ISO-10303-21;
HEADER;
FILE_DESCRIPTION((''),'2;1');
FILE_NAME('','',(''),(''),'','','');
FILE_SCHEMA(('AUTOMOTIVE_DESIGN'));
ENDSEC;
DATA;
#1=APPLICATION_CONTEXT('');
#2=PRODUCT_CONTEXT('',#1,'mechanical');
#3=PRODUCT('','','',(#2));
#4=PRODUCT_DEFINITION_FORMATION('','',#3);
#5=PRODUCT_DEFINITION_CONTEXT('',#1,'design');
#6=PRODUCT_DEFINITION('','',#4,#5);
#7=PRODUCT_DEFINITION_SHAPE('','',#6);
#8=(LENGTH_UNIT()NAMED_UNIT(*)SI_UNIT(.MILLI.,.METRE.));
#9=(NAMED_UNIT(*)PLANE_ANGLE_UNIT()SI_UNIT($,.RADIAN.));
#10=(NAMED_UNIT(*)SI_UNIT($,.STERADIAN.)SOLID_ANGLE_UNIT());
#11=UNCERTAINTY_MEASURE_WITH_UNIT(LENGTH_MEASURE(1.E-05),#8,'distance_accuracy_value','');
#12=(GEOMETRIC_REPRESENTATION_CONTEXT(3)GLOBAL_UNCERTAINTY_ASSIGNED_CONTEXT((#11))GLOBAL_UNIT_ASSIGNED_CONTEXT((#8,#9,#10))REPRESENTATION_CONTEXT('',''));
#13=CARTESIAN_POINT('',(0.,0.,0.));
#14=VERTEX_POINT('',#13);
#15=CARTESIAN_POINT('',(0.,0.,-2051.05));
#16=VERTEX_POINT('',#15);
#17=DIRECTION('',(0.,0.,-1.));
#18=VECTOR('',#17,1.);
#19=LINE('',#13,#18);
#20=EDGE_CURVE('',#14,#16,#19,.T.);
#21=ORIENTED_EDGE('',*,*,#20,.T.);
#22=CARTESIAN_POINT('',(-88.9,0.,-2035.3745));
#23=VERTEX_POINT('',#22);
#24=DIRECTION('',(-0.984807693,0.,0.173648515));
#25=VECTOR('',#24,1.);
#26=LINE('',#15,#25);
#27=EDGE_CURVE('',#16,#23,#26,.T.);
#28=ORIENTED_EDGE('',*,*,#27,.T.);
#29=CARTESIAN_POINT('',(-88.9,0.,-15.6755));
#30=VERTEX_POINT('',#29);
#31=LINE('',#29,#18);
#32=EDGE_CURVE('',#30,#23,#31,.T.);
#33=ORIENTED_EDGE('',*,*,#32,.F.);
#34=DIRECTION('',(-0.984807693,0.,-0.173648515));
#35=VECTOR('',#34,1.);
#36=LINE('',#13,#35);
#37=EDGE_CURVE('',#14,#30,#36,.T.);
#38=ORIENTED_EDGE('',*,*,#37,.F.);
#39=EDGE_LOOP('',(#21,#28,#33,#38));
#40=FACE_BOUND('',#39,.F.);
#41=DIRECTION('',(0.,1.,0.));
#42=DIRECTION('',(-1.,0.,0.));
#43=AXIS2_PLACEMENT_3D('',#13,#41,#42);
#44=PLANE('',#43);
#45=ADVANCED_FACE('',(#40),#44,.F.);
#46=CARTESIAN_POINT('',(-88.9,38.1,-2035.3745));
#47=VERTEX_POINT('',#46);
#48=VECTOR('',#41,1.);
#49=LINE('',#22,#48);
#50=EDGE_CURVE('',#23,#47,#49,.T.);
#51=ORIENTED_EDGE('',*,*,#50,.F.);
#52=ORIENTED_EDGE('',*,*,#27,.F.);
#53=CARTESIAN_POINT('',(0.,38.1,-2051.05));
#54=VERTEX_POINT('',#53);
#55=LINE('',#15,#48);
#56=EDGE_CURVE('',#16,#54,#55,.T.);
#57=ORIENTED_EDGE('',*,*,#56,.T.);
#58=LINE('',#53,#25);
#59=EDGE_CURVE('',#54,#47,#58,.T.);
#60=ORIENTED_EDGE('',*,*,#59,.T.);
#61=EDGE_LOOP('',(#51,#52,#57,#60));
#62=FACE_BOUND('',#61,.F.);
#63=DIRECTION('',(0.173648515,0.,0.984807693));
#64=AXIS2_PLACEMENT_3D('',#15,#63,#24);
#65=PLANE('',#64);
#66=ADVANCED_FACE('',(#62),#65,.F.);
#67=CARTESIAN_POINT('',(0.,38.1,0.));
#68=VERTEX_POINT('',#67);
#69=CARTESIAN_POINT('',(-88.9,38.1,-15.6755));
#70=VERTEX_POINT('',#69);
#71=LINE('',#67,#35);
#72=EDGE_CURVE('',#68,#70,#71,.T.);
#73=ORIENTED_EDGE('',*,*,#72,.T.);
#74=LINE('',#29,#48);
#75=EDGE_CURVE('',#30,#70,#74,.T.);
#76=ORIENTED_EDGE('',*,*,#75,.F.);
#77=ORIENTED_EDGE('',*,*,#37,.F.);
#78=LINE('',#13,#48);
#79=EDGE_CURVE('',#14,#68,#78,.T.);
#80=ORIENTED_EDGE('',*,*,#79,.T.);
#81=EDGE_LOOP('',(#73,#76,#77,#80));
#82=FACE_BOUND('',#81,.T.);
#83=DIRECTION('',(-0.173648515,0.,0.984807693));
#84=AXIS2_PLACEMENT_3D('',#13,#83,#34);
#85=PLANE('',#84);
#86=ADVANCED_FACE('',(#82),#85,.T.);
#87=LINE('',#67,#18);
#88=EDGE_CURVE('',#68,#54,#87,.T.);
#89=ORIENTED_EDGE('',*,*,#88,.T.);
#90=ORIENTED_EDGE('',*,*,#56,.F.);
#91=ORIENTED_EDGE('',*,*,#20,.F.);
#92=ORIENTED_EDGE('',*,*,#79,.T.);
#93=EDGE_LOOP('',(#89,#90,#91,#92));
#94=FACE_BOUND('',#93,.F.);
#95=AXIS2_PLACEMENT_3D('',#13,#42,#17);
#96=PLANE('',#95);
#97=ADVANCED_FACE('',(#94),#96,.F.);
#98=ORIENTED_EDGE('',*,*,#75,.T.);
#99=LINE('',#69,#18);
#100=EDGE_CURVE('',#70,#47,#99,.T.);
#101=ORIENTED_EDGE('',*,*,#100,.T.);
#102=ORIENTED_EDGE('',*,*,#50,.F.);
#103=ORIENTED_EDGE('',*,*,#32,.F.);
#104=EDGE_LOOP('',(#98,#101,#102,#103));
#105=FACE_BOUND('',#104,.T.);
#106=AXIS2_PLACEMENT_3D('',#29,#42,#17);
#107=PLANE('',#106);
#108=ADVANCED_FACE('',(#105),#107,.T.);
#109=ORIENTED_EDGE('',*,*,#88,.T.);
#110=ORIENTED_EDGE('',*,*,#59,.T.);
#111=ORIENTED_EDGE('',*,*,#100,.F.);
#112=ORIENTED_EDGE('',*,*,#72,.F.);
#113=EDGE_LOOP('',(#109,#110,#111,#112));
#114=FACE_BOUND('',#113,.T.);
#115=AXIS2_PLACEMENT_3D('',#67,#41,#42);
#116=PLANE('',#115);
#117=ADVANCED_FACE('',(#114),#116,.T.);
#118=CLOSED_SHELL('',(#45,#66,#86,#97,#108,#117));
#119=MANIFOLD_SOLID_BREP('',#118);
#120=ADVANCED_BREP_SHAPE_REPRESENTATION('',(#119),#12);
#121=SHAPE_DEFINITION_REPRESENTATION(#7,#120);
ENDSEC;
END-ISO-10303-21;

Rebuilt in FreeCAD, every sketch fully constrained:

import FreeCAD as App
import Part
import Sketcher
Q = App.Units.Quantity


def add_polygon(sketch, points):
    """Adds a closed chain of lines whose ends are joined by coincident constraints."""
    first, n = sketch.GeometryCount, len(points)
    for a, b in zip(points, points[1:] + points[:1]):
        sketch.addGeometry(Part.LineSegment(App.Vector(*a, 0), App.Vector(*b, 0)), False)
    for i in range(n):
        sketch.addConstraint(Sketcher.Constraint("Coincident", first + i, 2, first + (i + 1) % n, 1))

doc = App.newDocument("Part")
body = doc.addObject("PartDesign::Body", "Body")

# Sketch on XZ plane
sketch1 = doc.addObject("Sketcher::SketchObject", "Sketch")
body.addObject(sketch1)
sketch1.AttachmentSupport = (doc.XZ_Plane, [""])
sketch1.MapMode = "FlatFace"
add_polygon(sketch1, [(-88.9, -15.6755), (0, 0), (0, -2051.05), (-88.9, -2035.3745)])  # lines 0-3
sketch1.addConstraint([
    Sketcher.Constraint("Vertical", 1),
    Sketcher.Constraint("Vertical", 3),
    Sketcher.Constraint("Coincident", 0, 2, -1, 1),
    Sketcher.Constraint("Equal", 0, 2),
    Sketcher.Constraint("DistanceY", 1, 2, 1, 1, Q("80.75 in")),
    Sketcher.Constraint("Angle", 0, Q("10 deg")),
    Sketcher.Constraint("DistanceX", 2, 2, -1, 1, Q("3.5 in")),
])
pad1 = doc.addObject("PartDesign::Pad", "Pad")
body.addObject(pad1)
pad1.Profile = sketch1
pad1.Length = Q("1.5 in")
pad1.Reversed = True

doc.recompute()
